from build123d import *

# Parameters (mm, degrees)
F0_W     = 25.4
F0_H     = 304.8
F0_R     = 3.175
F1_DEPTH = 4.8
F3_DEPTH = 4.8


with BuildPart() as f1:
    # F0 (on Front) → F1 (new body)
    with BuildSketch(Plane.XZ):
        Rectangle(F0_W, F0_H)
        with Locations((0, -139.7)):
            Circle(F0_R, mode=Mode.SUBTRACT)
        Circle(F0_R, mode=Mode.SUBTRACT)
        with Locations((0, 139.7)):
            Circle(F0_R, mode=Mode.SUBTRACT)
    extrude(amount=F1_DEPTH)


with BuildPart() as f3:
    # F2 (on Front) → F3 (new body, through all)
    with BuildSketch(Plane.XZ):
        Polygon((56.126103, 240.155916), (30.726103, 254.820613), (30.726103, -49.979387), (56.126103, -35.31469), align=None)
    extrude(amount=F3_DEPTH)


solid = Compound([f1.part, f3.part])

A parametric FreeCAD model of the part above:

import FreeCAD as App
import Part
import Sketcher
from FreeCAD import Vector
Q = App.Units.Quantity

doc = App.newDocument("Part")
body = doc.addObject("PartDesign::Body", "Body")

# Sketch on XZ plane
sketch1 = body.newObject("Sketcher::SketchObject", "Sketch")
sketch1.AttachmentSupport = (doc.getObject("XZ_Plane"), [""])
sketch1.MapMode = "FlatFace"
sketch1.addGeometry(Part.LineSegment(Vector(-12.7, 152.4, 0), Vector(-12.7, -152.4, 0)), False)
sketch1.addGeometry(Part.LineSegment(Vector(-12.7, -152.4, 0), Vector(12.7, -152.4, 0)), False)
sketch1.addGeometry(Part.LineSegment(Vector(12.7, -152.4, 0), Vector(12.7, 152.4, 0)), False)
sketch1.addGeometry(Part.LineSegment(Vector(12.7, 152.4, 0), Vector(-12.7, 152.4, 0)), False)
sketch1.addGeometry(Part.Circle(Vector(0, -139.7, 0), Vector(0, 0, 1), 3.2), False)
sketch1.addGeometry(Part.Circle(Vector(0, 0, 0), Vector(0, 0, 1), 3.2), False)
sketch1.addGeometry(Part.Circle(Vector(0, 139.7, 0), Vector(0, 0, 1), 3.2), False)
sketch1.addConstraint(Sketcher.Constraint("Coincident", 0, 2, 1, 1))
sketch1.addConstraint(Sketcher.Constraint("Coincident", 1, 2, 2, 1))
sketch1.addConstraint(Sketcher.Constraint("Coincident", 2, 2, 3, 1))
sketch1.addConstraint(Sketcher.Constraint("Coincident", 3, 2, 0, 1))
sketch1.addConstraint(Sketcher.Constraint("Vertical", 0))
sketch1.addConstraint(Sketcher.Constraint("Horizontal", 1))
sketch1.addConstraint(Sketcher.Constraint("Vertical", 2))
sketch1.addConstraint(Sketcher.Constraint("Horizontal", 3))
sketch1.addConstraint(Sketcher.Constraint("Coincident", 5, 3, -1, 1))
sketch1.addConstraint(Sketcher.Constraint("Equal", 4, 5))
sketch1.addConstraint(Sketcher.Constraint("Equal", 5, 6))
sketch1.addConstraint(Sketcher.Constraint("Symmetric", 4, 3, 6, 3, -1, 1))
sketch1.addConstraint(Sketcher.Constraint("Symmetric", 0, 2, 2, 2, -1, 1))
sketch1.addConstraint(Sketcher.Constraint("PointOnObject", 4, 3, -2))
sketch1.addConstraint(Sketcher.Constraint("Diameter", 4, Q("0.25 in")))
sketch1.addConstraint(Sketcher.Constraint("DistanceX", 1, 1, 1, 2, Q("1 in")))
sketch1.addConstraint(Sketcher.Constraint("DistanceY", 0, 2, 0, 1, Q("12 in")))
sketch1.addConstraint(Sketcher.Constraint("DistanceY", 4, 3, 6, 3, Q("11 in")))
pad1 = body.newObject("PartDesign::Pad", "Pad")
pad1.Profile = sketch1
pad1.Length = 4.8
body2 = doc.addObject("PartDesign::Body", "Body001")

# Sketch on XZ plane
sketch2 = body2.newObject("Sketcher::SketchObject", "Sketch001")
sketch2.AttachmentSupport = (doc.getObject("XZ_Plane001"), [""])
sketch2.MapMode = "FlatFace"
sketch2.addGeometry(Part.LineSegment(Vector(56, 240, 0), Vector(31, 255, 0)), False)
sketch2.addGeometry(Part.LineSegment(Vector(31, 255, 0), Vector(31, -50, 0)), False)
sketch2.addGeometry(Part.LineSegment(Vector(31, -50, 0), Vector(56, -35, 0)), False)
sketch2.addGeometry(Part.LineSegment(Vector(56, -35, 0), Vector(56, 240, 0)), False)
sketch2.addConstraint(Sketcher.Constraint("Coincident", 0, 2, 1, 1))
sketch2.addConstraint(Sketcher.Constraint("Coincident", 1, 2, 2, 1))
sketch2.addConstraint(Sketcher.Constraint("Coincident", 2, 2, 3, 1))
sketch2.addConstraint(Sketcher.Constraint("Coincident", 3, 2, 0, 1))
sketch2.addConstraint(Sketcher.Constraint("Vertical", 1))
sketch2.addConstraint(Sketcher.Constraint("Vertical", 3))
sketch2.addConstraint(Sketcher.Constraint("Equal", 0, 2))
sketch2.addConstraint(Sketcher.Constraint("DistanceY", 1, 2, 1, 1, Q("12 in")))
sketch2.addConstraint(Sketcher.Constraint("Angle", 0, Q("150 deg")))
sketch2.addConstraint(Sketcher.Constraint("DistanceX", 1, 2, 2, 2, Q("1 in")))
sketch2.addConstraint(Sketcher.Constraint("DistanceY", 2, 2, -1, 1, 35.31469))
sketch2.addConstraint(Sketcher.Constraint("DistanceX", -1, 1, 0, 2, 30.726103))
pad2 = body2.newObject("PartDesign::Pad", "Pad001")
pad2.Profile = sketch2
pad2.Length = 4.8

doc.recompute()
